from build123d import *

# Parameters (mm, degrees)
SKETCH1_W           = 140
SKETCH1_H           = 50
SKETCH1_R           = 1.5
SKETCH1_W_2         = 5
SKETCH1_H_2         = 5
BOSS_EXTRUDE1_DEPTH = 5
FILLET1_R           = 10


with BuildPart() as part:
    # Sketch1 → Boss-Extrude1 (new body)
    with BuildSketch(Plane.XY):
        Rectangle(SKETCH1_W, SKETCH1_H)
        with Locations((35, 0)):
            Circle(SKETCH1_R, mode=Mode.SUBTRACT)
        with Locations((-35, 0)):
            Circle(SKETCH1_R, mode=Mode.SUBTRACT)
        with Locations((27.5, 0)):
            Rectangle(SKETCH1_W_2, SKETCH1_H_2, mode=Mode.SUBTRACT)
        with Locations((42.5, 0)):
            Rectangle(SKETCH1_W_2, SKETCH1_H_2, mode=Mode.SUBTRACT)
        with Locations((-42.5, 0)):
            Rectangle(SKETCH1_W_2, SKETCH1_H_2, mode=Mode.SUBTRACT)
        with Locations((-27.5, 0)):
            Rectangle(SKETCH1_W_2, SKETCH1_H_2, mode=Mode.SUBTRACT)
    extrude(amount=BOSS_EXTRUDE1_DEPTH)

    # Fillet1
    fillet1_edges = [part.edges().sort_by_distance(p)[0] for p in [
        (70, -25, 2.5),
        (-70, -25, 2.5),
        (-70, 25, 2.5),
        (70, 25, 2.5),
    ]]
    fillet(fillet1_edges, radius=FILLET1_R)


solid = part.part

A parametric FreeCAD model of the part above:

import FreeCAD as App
import Part
import Sketcher
Q = App.Units.Quantity


def edges_at(feature, points):
    """Names of the edges that pass closest to the given points."""
    edges = feature.Shape.Edges
    near = lambda p: min(range(len(edges)), key=lambda i: edges[i].distToShape(Part.Vertex(*p))[0])
    return sorted({f"Edge{near(p) + 1}" for p in points})


def add_polygon(sketch, points):
    """Adds a closed chain of lines whose ends are joined by coincident constraints."""
    first, n = sketch.GeometryCount, len(points)
    for a, b in zip(points, points[1:] + points[:1]):
        sketch.addGeometry(Part.LineSegment(App.Vector(*a, 0), App.Vector(*b, 0)), False)
    for i in range(n):
        sketch.addConstraint(Sketcher.Constraint("Coincident", first + i, 2, first + (i + 1) % n, 1))

doc = App.newDocument("Part")
params = doc.addObject("Spreadsheet::Sheet", "Params")
for row, (alias, value) in enumerate([
    ("sketch1_diameter", "3 mm"),
    ("sketch1_width", "140 mm"),
    ("sketch1_width2", "5 mm"),
    ("sketch1_height", "50 mm"),
    ("pad1_length", "5 mm"),
    ("fillet_radius", "10 mm"),
], start=1):
    params.set(f"A{row}", alias)
    params.set(f"B{row}", "=" + value)
    params.setAlias(f"B{row}", alias)

body = doc.addObject("PartDesign::Body", "Body")

# Sketch on XY plane
sketch1 = body.newObject("Sketcher::SketchObject", "Sketch")
sketch1.AttachmentSupport = (doc.getObject("XY_Plane"), [""])
sketch1.MapMode = "FlatFace"
add_polygon(sketch1, [(-70, 25), (-70, -25), (70, -25), (70, 25)])  # lines 0-3
add_polygon(sketch1, [(-40, -2.5), (-45, -2.5), (-45, 2.5), (-40, 2.5)])  # lines 4-7
sketch1.addGeometry(Part.Circle(App.Vector(-35, 0, 0), App.Vector(0, 0, 1), 1.5), False)  # 8
add_polygon(sketch1, [(-25, -2.5), (-30, -2.5), (-30, 2.5), (-25, 2.5)])  # lines 9-12
add_polygon(sketch1, [(30, -2.5), (25, -2.5), (25, 2.5), (30, 2.5)])  # lines 13-16
sketch1.addGeometry(Part.Circle(App.Vector(35, 0, 0), App.Vector(0, 0, 1), 1.5), False)  # 17
add_polygon(sketch1, [(45, -2.5), (40, -2.5), (40, 2.5), (45, 2.5)])  # lines 18-21
sketch1.addConstraint([
    Sketcher.Constraint("Vertical", 0),
    Sketcher.Constraint("Horizontal", 1),
    Sketcher.Constraint("Vertical", 2),
    Sketcher.Constraint("Horizontal", 3),
    Sketcher.Constraint("Horizontal", 4),
    Sketcher.Constraint("Vertical", 5),
    Sketcher.Constraint("Horizontal", 6),
    Sketcher.Constraint("Vertical", 7),
    Sketcher.Constraint("Horizontal", 9),
    Sketcher.Constraint("Vertical", 10),
    Sketcher.Constraint("Horizontal", 11),
    Sketcher.Constraint("Vertical", 12),
    Sketcher.Constraint("Horizontal", 13),
    Sketcher.Constraint("Vertical", 14),
    Sketcher.Constraint("Horizontal", 15),
    Sketcher.Constraint("Vertical", 16),
    Sketcher.Constraint("Horizontal", 18),
    Sketcher.Constraint("Vertical", 19),
    Sketcher.Constraint("Horizontal", 20),
    Sketcher.Constraint("Vertical", 21),
    Sketcher.Constraint("Equal", 8, 17),
    Sketcher.Constraint("Symmetric", 8, 3, 17, 3, -1, 1),
    Sketcher.Constraint("Symmetric", 0, 2, 2, 2, -1, 1),
    Sketcher.Constraint("Symmetric", 11, 2, 13, 2, -1, 1),
    Sketcher.Constraint("Symmetric", 9, 2, 15, 2, -1, 1),
    Sketcher.Constraint("Symmetric", 6, 2, 18, 2, -1, 1),
    Sketcher.Constraint("Symmetric", 4, 2, 20, 2, -1, 1),
    Sketcher.Constraint("PointOnObject", 8, 3, -1),
    Sketcher.Constraint("Horizontal", 7, 2, 9, 2),
    Sketcher.Constraint("Horizontal", 6, 2, 10, 2),
    Sketcher.Constraint("Horizontal", 12, 2, 13, 2),
    Sketcher.Constraint("Equal", 6, 9),
    Sketcher.Constraint("Equal", 20, 5),
    Sketcher.Constraint("Diameter", 8, Q("3 mm")),
    Sketcher.Constraint("DistanceX", 1, 1, 1, 2, Q("140 mm")),
    Sketcher.Constraint("DistanceX", 4, 2, 4, 1, Q("5 mm")),
    Sketcher.Constraint("DistanceY", 0, 2, 0, 1, Q("50 mm")),
    Sketcher.Constraint("DistanceX", 8, 3, -1, 1, Q("35 mm")),
    Sketcher.Constraint("DistanceX", 4, 2, -1, 1, Q("45 mm")),
    Sketcher.Constraint("DistanceX", 9, 2, -1, 1, Q("30 mm")),
])
sketch1.setExpression("Constraints[53]", "Params.sketch1_diameter")
sketch1.setExpression("Constraints[54]", "Params.sketch1_width")
sketch1.setExpression("Constraints[55]", "Params.sketch1_width2")
sketch1.setExpression("Constraints[56]", "Params.sketch1_height")
pad1 = body.newObject("PartDesign::Pad", "Pad")
pad1.Profile = sketch1
pad1.setExpression("Length", "Params.pad1_length")
doc.recompute()

fillet = body.newObject("PartDesign::Fillet", "Fillet")
fillet.Base = (pad1, edges_at(pad1, [
    (70, -25, 2.5),
    (-70, -25, 2.5),
    (-70, 25, 2.5),
    (70, 25, 2.5),
]))
fillet.setExpression("Radius", "Params.fillet_radius")

doc.recompute()
